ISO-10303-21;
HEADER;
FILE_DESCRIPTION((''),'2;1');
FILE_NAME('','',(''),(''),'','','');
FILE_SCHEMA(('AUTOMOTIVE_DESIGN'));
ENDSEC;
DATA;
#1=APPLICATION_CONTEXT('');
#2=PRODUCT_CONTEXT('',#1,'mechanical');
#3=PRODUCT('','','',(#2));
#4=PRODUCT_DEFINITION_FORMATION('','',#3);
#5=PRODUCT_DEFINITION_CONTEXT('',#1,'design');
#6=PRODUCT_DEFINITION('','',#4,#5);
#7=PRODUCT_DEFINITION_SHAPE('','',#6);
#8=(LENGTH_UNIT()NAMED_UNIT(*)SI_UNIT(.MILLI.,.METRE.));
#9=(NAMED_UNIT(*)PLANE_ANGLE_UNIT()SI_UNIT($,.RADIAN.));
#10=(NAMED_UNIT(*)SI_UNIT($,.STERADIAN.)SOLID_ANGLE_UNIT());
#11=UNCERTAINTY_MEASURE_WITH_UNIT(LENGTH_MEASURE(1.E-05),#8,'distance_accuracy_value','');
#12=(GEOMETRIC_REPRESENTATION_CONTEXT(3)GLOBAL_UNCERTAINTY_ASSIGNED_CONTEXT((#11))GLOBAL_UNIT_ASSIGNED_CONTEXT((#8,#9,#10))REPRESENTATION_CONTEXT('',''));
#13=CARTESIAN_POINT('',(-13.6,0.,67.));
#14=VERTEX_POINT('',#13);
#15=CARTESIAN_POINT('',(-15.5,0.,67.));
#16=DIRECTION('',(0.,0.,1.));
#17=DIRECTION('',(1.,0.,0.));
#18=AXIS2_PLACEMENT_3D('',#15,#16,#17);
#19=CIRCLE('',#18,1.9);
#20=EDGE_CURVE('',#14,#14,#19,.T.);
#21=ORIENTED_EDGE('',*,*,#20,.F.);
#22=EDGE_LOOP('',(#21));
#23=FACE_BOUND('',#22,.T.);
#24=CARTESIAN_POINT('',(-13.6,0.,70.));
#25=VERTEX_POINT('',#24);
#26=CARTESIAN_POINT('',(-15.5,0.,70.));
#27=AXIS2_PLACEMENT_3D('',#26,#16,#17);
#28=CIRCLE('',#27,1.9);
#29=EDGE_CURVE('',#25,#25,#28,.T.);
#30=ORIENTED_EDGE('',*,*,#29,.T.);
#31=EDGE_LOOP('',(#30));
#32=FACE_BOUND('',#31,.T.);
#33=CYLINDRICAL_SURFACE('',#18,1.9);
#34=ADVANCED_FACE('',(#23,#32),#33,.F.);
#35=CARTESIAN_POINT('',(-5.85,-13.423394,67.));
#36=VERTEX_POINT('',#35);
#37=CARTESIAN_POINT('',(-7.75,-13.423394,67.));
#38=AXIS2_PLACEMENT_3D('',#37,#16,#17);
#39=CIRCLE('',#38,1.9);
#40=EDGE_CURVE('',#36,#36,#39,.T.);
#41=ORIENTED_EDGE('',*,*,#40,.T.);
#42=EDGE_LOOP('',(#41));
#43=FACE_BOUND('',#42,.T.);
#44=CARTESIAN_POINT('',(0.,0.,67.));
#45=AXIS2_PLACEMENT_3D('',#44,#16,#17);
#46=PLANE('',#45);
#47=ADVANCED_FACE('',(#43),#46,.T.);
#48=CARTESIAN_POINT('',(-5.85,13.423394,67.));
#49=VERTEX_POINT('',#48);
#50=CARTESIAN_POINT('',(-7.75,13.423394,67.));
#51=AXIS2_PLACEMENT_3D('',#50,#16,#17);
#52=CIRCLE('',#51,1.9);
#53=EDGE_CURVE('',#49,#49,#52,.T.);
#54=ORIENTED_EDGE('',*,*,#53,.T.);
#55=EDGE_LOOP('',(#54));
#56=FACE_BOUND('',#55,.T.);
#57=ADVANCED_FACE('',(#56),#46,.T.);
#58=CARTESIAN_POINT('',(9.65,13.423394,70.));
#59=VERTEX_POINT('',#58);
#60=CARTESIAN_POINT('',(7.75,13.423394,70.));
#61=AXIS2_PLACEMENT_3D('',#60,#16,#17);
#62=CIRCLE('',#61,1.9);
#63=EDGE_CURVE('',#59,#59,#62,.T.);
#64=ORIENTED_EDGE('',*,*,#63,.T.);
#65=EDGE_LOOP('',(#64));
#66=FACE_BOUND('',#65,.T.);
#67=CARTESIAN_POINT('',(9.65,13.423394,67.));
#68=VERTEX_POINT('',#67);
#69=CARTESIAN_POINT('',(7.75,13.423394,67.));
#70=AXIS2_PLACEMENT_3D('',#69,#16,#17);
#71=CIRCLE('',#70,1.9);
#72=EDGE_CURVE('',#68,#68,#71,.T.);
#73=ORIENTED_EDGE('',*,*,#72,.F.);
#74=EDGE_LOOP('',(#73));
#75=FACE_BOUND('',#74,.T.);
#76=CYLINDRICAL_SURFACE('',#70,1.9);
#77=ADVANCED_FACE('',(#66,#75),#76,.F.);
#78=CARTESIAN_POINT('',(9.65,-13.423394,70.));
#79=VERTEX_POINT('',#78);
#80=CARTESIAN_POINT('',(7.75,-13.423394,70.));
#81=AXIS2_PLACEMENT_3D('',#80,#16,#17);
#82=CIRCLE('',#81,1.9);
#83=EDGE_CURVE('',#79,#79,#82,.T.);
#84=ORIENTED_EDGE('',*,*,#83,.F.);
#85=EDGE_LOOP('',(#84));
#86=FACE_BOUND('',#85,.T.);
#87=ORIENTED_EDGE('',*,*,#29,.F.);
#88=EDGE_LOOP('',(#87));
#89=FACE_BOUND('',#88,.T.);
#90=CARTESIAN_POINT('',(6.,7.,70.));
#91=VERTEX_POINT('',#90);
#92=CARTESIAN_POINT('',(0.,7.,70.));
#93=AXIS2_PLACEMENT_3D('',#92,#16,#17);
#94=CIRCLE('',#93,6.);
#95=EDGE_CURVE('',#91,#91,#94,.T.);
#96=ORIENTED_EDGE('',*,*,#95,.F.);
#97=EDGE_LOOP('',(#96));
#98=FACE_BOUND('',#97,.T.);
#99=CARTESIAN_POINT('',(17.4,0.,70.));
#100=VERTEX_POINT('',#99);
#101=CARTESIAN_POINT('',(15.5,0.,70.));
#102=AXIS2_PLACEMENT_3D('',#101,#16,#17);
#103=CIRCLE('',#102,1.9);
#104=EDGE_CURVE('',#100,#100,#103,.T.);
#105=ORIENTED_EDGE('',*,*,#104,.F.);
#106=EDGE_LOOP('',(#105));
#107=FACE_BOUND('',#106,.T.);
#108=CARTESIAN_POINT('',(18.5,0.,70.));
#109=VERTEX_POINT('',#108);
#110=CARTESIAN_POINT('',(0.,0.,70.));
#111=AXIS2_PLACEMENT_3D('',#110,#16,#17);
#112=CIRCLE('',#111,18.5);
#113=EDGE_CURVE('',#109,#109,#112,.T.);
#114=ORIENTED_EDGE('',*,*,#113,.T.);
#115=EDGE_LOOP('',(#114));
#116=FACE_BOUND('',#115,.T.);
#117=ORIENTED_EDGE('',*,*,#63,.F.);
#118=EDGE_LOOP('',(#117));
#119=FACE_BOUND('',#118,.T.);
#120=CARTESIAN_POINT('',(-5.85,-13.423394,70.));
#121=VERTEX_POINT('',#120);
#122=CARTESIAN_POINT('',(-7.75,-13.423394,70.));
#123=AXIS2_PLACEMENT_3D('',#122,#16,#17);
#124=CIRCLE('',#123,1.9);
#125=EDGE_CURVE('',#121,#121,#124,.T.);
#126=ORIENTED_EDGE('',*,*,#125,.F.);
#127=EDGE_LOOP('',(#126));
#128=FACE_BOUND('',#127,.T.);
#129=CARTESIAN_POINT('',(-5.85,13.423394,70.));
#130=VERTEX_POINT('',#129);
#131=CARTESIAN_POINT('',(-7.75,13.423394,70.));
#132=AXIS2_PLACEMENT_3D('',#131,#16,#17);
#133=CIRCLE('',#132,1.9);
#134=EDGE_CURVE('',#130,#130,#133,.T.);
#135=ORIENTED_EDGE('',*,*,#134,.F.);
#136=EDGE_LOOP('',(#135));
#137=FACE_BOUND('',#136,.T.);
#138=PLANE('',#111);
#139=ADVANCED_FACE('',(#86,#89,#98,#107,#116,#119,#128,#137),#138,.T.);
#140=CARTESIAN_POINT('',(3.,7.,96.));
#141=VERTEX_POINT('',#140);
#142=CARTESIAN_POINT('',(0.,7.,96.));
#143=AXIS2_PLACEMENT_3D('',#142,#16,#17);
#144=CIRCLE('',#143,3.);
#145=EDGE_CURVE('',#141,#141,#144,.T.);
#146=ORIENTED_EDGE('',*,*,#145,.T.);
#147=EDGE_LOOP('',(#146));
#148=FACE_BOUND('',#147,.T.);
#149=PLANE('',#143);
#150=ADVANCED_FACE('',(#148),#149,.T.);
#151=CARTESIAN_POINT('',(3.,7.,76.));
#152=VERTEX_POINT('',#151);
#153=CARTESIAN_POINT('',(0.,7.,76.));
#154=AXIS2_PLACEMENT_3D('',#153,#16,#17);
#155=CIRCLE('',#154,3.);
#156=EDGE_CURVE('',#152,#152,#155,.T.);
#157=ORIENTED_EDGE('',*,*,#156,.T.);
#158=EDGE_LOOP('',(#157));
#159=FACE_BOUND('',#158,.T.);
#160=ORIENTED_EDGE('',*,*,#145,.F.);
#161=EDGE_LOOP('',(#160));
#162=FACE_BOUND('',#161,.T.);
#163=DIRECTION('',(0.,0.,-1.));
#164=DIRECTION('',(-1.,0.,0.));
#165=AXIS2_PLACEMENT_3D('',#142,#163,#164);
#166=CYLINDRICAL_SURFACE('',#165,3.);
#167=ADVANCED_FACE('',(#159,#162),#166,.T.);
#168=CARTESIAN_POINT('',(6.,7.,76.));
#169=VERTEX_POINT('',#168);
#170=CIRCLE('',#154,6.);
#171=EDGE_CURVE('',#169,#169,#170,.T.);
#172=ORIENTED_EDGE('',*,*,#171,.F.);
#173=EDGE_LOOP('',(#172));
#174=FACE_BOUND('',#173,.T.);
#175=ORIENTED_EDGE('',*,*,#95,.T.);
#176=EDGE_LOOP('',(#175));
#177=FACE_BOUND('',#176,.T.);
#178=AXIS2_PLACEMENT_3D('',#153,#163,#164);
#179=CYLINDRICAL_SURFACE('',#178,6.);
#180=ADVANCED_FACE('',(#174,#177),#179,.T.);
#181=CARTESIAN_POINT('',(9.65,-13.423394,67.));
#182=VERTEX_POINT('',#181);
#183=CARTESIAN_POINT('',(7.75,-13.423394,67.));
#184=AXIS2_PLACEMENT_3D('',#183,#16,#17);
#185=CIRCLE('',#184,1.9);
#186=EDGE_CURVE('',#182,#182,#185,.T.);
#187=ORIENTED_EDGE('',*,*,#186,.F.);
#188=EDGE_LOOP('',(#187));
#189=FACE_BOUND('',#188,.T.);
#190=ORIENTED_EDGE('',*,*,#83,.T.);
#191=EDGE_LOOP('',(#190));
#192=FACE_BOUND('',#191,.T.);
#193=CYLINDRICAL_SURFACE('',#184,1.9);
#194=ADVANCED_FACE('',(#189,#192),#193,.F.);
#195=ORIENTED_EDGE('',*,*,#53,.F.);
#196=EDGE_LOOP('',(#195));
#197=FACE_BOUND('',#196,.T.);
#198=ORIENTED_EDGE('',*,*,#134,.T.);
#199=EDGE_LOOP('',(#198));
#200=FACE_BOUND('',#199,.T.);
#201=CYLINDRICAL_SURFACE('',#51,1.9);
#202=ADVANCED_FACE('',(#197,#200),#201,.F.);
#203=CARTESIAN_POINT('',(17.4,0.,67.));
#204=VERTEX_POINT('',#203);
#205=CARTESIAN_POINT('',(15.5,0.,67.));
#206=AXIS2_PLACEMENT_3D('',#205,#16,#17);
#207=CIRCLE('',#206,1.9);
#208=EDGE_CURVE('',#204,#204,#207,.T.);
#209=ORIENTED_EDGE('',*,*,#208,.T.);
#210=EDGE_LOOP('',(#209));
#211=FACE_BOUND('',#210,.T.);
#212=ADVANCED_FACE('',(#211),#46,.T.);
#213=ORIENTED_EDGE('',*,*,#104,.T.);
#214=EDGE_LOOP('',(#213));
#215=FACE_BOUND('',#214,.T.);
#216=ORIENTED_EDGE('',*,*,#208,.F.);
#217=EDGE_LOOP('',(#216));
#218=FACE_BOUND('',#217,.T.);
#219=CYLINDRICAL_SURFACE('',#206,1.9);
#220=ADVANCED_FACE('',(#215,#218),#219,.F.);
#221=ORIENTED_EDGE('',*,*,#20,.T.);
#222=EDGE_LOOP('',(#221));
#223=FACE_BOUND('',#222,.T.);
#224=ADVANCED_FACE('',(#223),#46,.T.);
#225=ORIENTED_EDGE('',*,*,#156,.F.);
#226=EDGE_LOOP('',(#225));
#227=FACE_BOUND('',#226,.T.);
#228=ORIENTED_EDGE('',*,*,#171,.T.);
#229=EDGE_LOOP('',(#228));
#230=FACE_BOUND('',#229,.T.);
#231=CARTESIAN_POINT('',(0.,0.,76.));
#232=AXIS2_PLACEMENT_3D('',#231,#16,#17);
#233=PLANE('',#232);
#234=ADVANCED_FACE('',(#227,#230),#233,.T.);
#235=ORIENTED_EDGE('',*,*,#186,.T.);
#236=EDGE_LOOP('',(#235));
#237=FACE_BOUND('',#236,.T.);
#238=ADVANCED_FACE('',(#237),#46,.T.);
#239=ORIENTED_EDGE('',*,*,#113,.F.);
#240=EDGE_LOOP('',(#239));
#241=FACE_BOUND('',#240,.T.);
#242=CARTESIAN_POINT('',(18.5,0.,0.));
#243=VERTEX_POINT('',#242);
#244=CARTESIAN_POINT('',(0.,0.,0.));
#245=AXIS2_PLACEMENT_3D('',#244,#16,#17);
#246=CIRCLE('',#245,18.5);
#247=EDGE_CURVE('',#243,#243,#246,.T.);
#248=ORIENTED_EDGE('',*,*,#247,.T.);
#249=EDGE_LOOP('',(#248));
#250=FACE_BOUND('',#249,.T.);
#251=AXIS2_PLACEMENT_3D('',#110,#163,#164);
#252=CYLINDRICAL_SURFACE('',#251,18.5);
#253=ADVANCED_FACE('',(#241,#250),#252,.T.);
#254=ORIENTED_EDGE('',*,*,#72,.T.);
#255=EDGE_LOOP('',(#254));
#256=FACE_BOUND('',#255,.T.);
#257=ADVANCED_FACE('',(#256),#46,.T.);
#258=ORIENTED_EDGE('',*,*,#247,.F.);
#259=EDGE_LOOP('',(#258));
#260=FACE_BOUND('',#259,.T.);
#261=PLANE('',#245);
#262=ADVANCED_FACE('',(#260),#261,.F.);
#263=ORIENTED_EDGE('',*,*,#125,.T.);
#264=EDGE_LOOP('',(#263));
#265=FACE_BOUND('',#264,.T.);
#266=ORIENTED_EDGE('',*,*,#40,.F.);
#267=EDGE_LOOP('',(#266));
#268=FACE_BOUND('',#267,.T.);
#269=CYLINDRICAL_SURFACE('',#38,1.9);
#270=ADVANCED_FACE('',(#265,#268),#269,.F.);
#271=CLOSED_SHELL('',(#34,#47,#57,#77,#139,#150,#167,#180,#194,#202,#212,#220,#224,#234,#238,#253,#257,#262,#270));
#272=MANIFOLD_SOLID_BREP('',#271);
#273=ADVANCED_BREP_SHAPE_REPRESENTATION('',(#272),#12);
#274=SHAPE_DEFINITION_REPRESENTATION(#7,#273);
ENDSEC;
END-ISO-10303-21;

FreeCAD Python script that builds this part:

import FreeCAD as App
import Part
import Sketcher
from FreeCAD import Vector

doc = App.newDocument("Part")
body = doc.addObject("PartDesign::Body", "Body")

# Sketch on XY plane
sketch1 = doc.addObject("Sketcher::SketchObject", "Sketch")
body.addObject(sketch1)
sketch1.AttachmentSupport = (doc.XY_Plane, [""])
sketch1.MapMode = "FlatFace"
sketch1.addGeometry(Part.Circle(Vector(0, 0, 0), Vector(0, 0, 1), 18.5), False)
sketch1.addConstraint([
    Sketcher.Constraint("Coincident", 0, 3, -1, 1),
    Sketcher.Constraint("Diameter", 0, 37.0),
])
pad1 = doc.addObject("PartDesign::Pad", "Pad")
body.addObject(pad1)
pad1.Profile = sketch1
pad1.Length = 70

# Sketch on XY plane
sketch2 = doc.addObject("Sketcher::SketchObject", "Sketch001")
body.addObject(sketch2)
sketch2.AttachmentSupport = (doc.XY_Plane, [""])
sketch2.MapMode = "FlatFace"
sketch2.AttachmentOffset = App.Placement(Vector(0, 0, 70), App.Rotation())
sketch2.addGeometry([
    Part.Circle(Vector(15.5, 0, 0), Vector(0, 0, 1), 1.9),  # 0
    Part.Circle(Vector(7.75, -13.423394, 0), Vector(0, 0, 1), 1.9),  # 1
    Part.Circle(Vector(-7.75, -13.423394, 0), Vector(0, 0, 1), 1.9),  # 2
    Part.Circle(Vector(-15.5, 0, 0), Vector(0, 0, 1), 1.9),  # 3
    Part.Circle(Vector(-7.75, 13.423394, 0), Vector(0, 0, 1), 1.9),  # 4
    Part.Circle(Vector(7.75, 13.423394, 0), Vector(0, 0, 1), 1.9),  # 5
], False)
sketch2.addConstraint([
    Sketcher.Constraint("Equal", 0, 1),
    Sketcher.Constraint("Equal", 1, 2),
    Sketcher.Constraint("Equal", 2, 3),
    Sketcher.Constraint("Equal", 3, 4),
    Sketcher.Constraint("Equal", 4, 5),
    Sketcher.Constraint("Symmetric", 0, 3, 3, 3, -1, 1),
    Sketcher.Constraint("Symmetric", 1, 3, 4, 3, -1, 1),
    Sketcher.Constraint("Symmetric", 2, 3, 5, 3, -1, 1),
    Sketcher.Constraint("Symmetric", 1, 3, 2, 3, -2),
    Sketcher.Constraint("PointOnObject", 0, 3, -1),
    Sketcher.Constraint("Diameter", 0, 3.8),
    Sketcher.Constraint("DistanceX", 3, 3, 0, 3, 31.0),
    Sketcher.Constraint("DistanceX", 2, 3, 1, 3, 15.5),
    Sketcher.Constraint("DistanceY", 1, 3, -1, 1, 13.423394),
])
pocket1 = doc.addObject("PartDesign::Pocket", "Pocket")
body.addObject(pocket1)
pocket1.Profile = sketch2
pocket1.Length = 3

# Sketch on XY plane
sketch3 = doc.addObject("Sketcher::SketchObject", "Sketch002")
body.addObject(sketch3)
sketch3.AttachmentSupport = (doc.XY_Plane, [""])
sketch3.MapMode = "FlatFace"
sketch3.AttachmentOffset = App.Placement(Vector(0, 0, 70), App.Rotation())
sketch3.addGeometry(Part.Circle(Vector(0, 7, 0), Vector(0, 0, 1), 6), False)
sketch3.addConstraint([
    Sketcher.Constraint("PointOnObject", 0, 3, -2),
    Sketcher.Constraint("Diameter", 0, 12.0),
    Sketcher.Constraint("DistanceY", -1, 1, 0, 3, 7.0),
])
pad2 = doc.addObject("PartDesign::Pad", "Pad001")
body.addObject(pad2)
pad2.Profile = sketch3
pad2.Length = 6

# Sketch on XY plane
sketch4 = doc.addObject("Sketcher::SketchObject", "Sketch003")
body.addObject(sketch4)
sketch4.AttachmentSupport = (doc.XY_Plane, [""])
sketch4.MapMode = "FlatFace"
sketch4.AttachmentOffset = App.Placement(Vector(0, 0, 76), App.Rotation())
sketch4.addGeometry(Part.Circle(Vector(0, 7, 0), Vector(0, 0, 1), 3), False)
sketch4.addConstraint([
    Sketcher.Constraint("PointOnObject", 0, 3, -2),
    Sketcher.Constraint("Diameter", 0, 6.0),
    Sketcher.Constraint("DistanceY", -1, 1, 0, 3, 7.0),
])
pad3 = doc.addObject("PartDesign::Pad", "Pad002")
body.addObject(pad3)
pad3.Profile = sketch4
pad3.Length = 20

doc.recompute()
